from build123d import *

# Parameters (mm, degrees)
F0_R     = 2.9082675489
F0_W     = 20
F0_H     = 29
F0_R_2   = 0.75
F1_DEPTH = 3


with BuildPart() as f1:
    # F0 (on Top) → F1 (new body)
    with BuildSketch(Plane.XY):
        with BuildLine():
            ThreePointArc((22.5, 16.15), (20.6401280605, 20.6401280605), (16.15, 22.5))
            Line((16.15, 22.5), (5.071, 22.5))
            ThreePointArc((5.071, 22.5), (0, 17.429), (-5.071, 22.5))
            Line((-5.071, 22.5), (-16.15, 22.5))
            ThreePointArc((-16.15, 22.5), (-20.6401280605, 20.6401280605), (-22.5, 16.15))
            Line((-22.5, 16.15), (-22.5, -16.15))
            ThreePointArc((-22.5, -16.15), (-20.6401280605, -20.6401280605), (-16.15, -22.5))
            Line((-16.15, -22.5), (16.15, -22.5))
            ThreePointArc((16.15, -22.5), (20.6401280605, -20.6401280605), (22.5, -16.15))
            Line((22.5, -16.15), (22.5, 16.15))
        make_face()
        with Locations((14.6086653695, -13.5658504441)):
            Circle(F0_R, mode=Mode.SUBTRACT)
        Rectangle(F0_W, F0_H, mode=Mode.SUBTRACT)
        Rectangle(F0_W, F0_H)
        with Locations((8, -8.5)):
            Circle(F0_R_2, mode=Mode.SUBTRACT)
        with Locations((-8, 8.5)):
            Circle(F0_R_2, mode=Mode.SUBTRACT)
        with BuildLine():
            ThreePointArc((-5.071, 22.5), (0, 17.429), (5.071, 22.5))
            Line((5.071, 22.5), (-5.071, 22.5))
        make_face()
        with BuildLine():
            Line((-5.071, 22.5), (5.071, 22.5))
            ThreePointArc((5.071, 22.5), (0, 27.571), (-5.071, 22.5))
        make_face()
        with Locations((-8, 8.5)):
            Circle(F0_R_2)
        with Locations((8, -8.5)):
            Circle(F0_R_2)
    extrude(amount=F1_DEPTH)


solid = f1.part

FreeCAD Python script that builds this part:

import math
import FreeCAD as App
import Part
import Sketcher

V = App.Vector
Q = App.Units.Quantity

doc = App.newDocument("Part")
body = doc.addObject("PartDesign::Body", "Body")

# Sketch on XY plane
sketch1 = doc.addObject("Sketcher::SketchObject", "Sketch")
body.addObject(sketch1)
sketch1.AttachmentSupport = (doc.XY_Plane, [""])
sketch1.MapMode = "FlatFace"
sketch1.addGeometry([
    Part.ArcOfCircle(Part.Circle(V(16.1, 16.1, 0), V(0, 0, 1), 6.3), math.radians(0), math.radians(90)),  # 0
    Part.LineSegment(V(16.1, 22.5, 0), V(5.1, 22.5, 0)),  # 1
    Part.ArcOfCircle(Part.Circle(V(0, 22.5, 0), V(0, 0, 1), 5.1), math.radians(0), math.radians(180)),  # 2
    Part.LineSegment(V(-5.1, 22.5, 0), V(-16.1, 22.5, 0)),  # 3
    Part.ArcOfCircle(Part.Circle(V(-16.1, 16.1, 0), V(0, 0, 1), 6.3), math.radians(90), math.radians(180)),  # 4
    Part.LineSegment(V(-22.5, 16.1, 0), V(-22.5, -16.1, 0)),  # 5
    Part.ArcOfCircle(Part.Circle(V(-16.1, -16.1, 0), V(0, 0, 1), 6.3), math.radians(180), math.radians(270)),  # 6
    Part.LineSegment(V(-16.1, -22.5, 0), V(16.1, -22.5, 0)),  # 7
    Part.ArcOfCircle(Part.Circle(V(16.1, -16.1, 0), V(0, 0, 1), 6.3), math.radians(-90), math.radians(0)),  # 8
    Part.LineSegment(V(22.5, -16.1, 0), V(22.5, 16.1, 0)),  # 9
    Part.Circle(V(14.6, -13.6, 0), V(0, 0, 1), 2.9),  # 10
], False)
sketch1.addConstraint([
    Sketcher.Constraint("Tangent", 0, 2, 1, 1),
    Sketcher.Constraint("Coincident", 1, 2, 2, 1),
    Sketcher.Constraint("Coincident", 2, 2, 3, 1),
    Sketcher.Constraint("Tangent", 3, 2, 4, 1),
    Sketcher.Constraint("Tangent", 4, 2, 5, 1),
    Sketcher.Constraint("Tangent", 5, 2, 6, 1),
    Sketcher.Constraint("Tangent", 6, 2, 7, 1),
    Sketcher.Constraint("Tangent", 7, 2, 8, 1),
    Sketcher.Constraint("Tangent", 8, 2, 9, 1),
    Sketcher.Constraint("Tangent", 9, 2, 0, 1),
    Sketcher.Constraint("Horizontal", 1),
    Sketcher.Constraint("Horizontal", 3),
    Sketcher.Constraint("Vertical", 5),
    Sketcher.Constraint("Horizontal", 7),
    Sketcher.Constraint("Vertical", 9),
    Sketcher.Constraint("Equal", 0, 4),
    Sketcher.Constraint("Equal", 4, 6),
    Sketcher.Constraint("Equal", 6, 8),
    Sketcher.Constraint("Symmetric", 0, 3, 6, 3, -1, 1),
    Sketcher.Constraint("Symmetric", 1, 2, 2, 2, -2),
    Sketcher.Constraint("Horizontal", 2, 3, 0, 2),
    Sketcher.Constraint("Equal", 7, 5),
    Sketcher.Constraint("Radius", 0, Q("6.35 mm")),
    Sketcher.Constraint("DistanceX", 7, 1, 7, 2, Q("32.3 mm")),
    Sketcher.Constraint("Radius", 2, Q("5.071 mm")),
    Sketcher.Constraint("Diameter", 10, Q("5.816535 mm")),
    Sketcher.Constraint("DistanceY", 10, 3, -1, 1, Q("13.56585 mm")),
    Sketcher.Constraint("DistanceX", -1, 1, 10, 3, Q("14.608665 mm")),
])
pad1 = doc.addObject("PartDesign::Pad", "Pad")
body.addObject(pad1)
pad1.Profile = sketch1
pad1.Length = 3

doc.recompute()
